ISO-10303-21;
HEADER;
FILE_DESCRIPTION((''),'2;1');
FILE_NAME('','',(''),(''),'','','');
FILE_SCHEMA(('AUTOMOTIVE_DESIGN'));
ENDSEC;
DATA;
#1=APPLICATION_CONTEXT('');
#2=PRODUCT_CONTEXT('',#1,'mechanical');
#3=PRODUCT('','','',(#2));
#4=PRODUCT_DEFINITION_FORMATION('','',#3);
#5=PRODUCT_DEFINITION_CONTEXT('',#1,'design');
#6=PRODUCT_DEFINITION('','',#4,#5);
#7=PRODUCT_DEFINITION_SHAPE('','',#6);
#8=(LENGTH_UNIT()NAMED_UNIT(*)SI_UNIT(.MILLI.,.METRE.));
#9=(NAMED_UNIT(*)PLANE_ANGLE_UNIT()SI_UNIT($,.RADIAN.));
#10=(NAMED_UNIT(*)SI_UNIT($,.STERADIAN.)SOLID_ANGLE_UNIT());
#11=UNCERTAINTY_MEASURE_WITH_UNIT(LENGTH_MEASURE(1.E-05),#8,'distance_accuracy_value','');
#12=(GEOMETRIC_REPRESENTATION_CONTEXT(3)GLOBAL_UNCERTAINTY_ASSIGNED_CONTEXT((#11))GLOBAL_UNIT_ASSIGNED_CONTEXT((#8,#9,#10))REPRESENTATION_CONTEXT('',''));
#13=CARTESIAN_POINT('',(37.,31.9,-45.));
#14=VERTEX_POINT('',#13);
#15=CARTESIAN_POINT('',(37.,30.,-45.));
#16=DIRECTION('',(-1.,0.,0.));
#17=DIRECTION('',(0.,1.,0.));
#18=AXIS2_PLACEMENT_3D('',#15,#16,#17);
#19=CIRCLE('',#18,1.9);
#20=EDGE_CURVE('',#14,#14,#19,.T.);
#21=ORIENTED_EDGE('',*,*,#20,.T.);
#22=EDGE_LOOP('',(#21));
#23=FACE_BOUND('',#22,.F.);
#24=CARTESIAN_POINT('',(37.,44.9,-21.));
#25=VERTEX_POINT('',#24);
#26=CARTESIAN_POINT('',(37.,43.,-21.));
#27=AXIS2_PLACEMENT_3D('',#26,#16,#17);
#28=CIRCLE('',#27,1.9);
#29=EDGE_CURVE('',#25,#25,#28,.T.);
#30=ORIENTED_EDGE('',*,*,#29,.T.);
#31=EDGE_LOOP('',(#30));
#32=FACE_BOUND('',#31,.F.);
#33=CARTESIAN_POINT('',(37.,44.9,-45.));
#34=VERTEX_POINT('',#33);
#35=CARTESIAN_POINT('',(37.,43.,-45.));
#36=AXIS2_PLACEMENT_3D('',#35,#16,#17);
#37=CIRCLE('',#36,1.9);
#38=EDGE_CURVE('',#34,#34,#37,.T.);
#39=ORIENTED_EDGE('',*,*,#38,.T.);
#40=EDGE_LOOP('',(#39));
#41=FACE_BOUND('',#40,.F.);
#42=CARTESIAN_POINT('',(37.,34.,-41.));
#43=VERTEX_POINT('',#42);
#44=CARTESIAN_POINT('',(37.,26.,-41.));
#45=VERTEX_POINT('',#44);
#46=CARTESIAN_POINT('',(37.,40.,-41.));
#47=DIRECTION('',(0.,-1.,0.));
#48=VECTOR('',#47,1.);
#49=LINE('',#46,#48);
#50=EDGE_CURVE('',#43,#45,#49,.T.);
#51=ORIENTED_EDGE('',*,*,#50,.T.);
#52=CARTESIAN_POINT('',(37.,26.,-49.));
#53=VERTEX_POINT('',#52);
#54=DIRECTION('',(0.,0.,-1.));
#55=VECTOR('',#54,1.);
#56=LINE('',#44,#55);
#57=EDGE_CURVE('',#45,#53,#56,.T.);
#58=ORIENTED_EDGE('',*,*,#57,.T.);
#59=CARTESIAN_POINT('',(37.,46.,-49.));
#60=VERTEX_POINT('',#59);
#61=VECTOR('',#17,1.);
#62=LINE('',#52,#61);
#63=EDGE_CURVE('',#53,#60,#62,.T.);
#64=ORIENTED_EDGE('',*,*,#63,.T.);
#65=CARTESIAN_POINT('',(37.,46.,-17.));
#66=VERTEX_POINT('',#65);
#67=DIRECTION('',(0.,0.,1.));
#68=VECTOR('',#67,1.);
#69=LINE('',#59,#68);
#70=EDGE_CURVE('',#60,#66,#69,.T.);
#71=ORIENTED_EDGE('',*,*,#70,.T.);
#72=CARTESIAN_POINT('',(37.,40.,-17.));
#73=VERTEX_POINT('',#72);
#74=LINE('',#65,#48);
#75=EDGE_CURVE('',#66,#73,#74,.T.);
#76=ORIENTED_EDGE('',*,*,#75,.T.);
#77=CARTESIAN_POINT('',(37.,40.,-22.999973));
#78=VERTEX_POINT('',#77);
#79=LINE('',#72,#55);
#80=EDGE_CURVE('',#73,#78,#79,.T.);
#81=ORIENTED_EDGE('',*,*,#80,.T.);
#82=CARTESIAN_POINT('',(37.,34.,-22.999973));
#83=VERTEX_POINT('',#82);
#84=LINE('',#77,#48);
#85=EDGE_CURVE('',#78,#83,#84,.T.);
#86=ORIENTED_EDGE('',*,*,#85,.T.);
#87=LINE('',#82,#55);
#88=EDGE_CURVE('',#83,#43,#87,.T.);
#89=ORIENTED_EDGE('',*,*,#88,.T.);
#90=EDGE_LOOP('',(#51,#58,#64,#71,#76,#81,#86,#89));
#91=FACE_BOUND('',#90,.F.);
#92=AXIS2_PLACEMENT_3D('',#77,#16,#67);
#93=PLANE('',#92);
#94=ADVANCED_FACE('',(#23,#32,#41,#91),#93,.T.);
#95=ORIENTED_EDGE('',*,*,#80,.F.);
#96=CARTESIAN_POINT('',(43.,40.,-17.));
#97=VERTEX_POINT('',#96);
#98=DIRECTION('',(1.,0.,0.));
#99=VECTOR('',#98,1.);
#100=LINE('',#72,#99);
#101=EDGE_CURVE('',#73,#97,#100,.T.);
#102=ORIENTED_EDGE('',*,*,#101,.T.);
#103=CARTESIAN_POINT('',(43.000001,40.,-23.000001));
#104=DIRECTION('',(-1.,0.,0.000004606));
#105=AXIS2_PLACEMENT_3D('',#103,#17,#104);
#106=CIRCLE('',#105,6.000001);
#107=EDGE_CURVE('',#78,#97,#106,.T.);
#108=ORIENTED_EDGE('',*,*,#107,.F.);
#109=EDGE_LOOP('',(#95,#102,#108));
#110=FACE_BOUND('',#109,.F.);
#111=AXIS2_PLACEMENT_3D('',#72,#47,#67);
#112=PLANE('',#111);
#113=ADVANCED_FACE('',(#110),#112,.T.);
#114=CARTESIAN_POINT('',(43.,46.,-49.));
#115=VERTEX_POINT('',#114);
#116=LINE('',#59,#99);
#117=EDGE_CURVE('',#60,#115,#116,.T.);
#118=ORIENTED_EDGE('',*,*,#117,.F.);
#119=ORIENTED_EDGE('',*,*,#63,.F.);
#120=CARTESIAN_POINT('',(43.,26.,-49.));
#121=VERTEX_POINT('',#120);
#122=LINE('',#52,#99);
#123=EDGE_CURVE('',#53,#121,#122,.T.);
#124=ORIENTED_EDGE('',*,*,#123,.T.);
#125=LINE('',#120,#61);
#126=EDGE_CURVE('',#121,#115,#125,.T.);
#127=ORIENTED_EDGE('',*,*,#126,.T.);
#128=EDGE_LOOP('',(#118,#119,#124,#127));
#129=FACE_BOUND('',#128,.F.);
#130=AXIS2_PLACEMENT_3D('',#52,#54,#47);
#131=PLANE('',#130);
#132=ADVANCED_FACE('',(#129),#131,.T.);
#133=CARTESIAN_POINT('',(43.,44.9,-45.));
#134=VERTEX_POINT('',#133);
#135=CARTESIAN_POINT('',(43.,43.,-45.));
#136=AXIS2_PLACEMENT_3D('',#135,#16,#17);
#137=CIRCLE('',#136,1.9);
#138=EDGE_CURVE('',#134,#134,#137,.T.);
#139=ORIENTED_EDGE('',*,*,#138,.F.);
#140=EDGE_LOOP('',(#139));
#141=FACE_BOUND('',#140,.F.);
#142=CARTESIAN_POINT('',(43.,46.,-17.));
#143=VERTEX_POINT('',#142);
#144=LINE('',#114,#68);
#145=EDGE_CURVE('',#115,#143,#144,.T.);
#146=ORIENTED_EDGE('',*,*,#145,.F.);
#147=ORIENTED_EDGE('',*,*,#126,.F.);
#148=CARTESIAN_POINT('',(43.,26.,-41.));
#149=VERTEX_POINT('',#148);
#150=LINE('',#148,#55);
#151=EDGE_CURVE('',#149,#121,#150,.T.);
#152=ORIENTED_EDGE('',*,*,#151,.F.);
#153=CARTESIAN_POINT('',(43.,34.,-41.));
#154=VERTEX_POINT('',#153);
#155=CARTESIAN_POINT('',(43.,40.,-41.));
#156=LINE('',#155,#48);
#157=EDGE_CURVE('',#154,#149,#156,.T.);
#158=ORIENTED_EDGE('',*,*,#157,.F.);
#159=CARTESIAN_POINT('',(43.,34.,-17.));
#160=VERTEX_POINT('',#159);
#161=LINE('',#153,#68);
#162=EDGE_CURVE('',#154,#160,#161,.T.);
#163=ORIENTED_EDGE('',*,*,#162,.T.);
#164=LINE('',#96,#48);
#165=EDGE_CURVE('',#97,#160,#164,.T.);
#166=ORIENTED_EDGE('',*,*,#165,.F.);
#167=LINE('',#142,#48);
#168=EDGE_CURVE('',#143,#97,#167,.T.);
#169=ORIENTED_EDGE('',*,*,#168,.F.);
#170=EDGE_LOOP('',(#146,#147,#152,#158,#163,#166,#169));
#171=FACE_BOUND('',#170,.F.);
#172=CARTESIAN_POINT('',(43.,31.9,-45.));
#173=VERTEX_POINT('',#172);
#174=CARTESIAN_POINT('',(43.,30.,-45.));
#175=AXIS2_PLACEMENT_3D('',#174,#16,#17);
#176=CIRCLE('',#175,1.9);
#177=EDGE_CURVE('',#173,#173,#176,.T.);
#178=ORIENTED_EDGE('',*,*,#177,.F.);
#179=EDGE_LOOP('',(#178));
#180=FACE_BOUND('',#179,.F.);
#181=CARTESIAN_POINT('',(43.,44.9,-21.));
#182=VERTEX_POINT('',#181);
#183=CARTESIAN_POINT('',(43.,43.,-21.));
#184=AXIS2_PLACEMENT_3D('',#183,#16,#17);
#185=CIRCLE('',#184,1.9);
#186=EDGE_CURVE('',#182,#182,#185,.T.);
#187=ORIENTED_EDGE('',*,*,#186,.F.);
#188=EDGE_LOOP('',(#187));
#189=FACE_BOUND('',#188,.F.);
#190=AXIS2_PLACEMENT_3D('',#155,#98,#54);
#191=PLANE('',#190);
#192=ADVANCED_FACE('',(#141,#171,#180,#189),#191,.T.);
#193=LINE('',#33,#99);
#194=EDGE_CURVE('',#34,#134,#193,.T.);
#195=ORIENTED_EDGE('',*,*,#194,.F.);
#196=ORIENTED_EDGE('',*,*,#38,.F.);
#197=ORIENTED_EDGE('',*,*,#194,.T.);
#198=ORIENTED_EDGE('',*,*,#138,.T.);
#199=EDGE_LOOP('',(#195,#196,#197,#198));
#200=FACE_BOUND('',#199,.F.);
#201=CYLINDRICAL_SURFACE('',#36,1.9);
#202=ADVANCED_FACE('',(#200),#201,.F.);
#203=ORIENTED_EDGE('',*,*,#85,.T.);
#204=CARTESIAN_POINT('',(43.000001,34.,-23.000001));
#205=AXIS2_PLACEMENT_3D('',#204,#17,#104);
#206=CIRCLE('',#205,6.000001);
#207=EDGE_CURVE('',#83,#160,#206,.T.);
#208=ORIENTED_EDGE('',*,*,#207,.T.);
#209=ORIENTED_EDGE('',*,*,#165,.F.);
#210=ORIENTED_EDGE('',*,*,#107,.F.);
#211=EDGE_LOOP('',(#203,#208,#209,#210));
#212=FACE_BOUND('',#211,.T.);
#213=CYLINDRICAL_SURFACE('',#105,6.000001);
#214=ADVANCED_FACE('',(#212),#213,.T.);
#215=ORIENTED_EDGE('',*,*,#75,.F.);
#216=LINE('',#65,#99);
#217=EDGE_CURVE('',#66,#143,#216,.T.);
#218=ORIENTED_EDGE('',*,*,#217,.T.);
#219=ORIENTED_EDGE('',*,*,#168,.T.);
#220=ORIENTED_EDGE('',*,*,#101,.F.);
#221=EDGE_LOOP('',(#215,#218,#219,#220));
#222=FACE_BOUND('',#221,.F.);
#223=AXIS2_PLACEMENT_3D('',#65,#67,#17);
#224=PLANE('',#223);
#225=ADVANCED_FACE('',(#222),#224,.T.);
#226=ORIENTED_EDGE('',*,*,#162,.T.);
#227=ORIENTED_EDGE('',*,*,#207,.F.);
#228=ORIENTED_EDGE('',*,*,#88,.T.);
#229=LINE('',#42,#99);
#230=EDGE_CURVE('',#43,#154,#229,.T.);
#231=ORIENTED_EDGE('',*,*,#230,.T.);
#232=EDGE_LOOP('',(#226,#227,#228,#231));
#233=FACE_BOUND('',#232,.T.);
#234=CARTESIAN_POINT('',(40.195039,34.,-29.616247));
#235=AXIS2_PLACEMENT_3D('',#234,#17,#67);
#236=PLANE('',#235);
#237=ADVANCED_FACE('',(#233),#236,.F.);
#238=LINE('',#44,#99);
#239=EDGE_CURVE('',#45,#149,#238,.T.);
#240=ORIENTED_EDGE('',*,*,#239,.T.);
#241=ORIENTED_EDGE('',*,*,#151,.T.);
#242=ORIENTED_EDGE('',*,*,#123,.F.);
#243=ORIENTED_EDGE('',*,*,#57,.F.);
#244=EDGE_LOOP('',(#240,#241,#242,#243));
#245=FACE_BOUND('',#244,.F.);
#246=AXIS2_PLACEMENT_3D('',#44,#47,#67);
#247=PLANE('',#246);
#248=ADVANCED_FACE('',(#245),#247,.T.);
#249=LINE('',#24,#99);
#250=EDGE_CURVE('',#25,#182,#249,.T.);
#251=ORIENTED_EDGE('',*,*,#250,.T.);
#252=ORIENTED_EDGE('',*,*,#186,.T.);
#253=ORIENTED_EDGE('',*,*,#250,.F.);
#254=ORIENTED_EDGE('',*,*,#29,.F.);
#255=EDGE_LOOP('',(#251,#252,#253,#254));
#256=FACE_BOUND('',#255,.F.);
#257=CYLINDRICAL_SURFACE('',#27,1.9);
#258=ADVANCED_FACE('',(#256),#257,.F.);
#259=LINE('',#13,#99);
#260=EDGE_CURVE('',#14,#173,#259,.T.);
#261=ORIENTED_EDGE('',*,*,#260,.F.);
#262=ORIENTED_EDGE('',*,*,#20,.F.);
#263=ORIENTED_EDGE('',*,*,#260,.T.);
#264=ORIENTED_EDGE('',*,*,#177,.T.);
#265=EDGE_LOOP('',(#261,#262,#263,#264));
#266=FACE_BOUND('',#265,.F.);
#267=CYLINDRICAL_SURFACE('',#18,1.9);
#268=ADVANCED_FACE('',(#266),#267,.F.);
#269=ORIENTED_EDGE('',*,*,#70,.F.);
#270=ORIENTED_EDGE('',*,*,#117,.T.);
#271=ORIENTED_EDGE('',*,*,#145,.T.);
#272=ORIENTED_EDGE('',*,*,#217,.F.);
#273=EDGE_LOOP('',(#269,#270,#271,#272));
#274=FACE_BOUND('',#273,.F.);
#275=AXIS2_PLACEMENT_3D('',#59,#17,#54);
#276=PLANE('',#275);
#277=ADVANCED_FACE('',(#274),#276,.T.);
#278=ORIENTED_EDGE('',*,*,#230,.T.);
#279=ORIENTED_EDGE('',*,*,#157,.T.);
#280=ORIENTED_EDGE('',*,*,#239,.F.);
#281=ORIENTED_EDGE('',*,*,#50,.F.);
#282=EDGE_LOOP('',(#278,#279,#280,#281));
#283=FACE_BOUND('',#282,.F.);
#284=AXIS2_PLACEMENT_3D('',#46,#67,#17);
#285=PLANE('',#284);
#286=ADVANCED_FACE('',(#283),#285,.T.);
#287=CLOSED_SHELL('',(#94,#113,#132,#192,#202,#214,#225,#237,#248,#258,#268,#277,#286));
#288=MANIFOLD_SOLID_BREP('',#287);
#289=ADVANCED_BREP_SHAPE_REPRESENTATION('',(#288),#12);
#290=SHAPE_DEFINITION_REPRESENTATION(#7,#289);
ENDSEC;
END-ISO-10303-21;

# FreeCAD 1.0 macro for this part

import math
import FreeCAD as App
import Part
import Sketcher
Q = App.Units.Quantity


def add_polygon(sketch, points):
    """Adds a closed chain of lines whose ends are joined by coincident constraints."""
    first, n = sketch.GeometryCount, len(points)
    for a, b in zip(points, points[1:] + points[:1]):
        sketch.addGeometry(Part.LineSegment(App.Vector(*a, 0), App.Vector(*b, 0)), False)
    for i in range(n):
        sketch.addConstraint(Sketcher.Constraint("Coincident", first + i, 2, first + (i + 1) % n, 1))

doc = App.newDocument("Part")
body = doc.addObject("PartDesign::Body", "Body")

sketch1 = doc.addObject("Sketcher::SketchObject", "Sketch")
body.addObject(sketch1)
sketch1.AttachmentSupport = (doc.YZ_Plane, [""])
sketch1.MapMode = "FlatFace"
sketch1.AttachmentOffset = App.Placement(App.Vector(0, 0, -37), App.Rotation())
add_polygon(sketch1, [(40, -17), (46, -17), (46, -49), (26, -49), (26, -41), (40, -41)])
sketch1.addGeometry(Part.Circle(App.Vector(43, -21, 0), App.Vector(0, 0, 1), 1.9), False)
sketch1.addGeometry(Part.Circle(App.Vector(43, -45, 0), App.Vector(0, 0, 1), 1.9), False)
sketch1.addGeometry(Part.Circle(App.Vector(30, -45, 0), App.Vector(0, 0, 1), 1.9), False)
sketch1.addConstraint(Sketcher.Constraint("Horizontal", 0))
sketch1.addConstraint(Sketcher.Constraint("Vertical", 1))
sketch1.addConstraint(Sketcher.Constraint("Horizontal", 2))
sketch1.addConstraint(Sketcher.Constraint("Vertical", 3))
sketch1.addConstraint(Sketcher.Constraint("Horizontal", 4))
sketch1.addConstraint(Sketcher.Constraint("Vertical", 5))
sketch1.addConstraint(Sketcher.Constraint("Equal", 6, 7))
sketch1.addConstraint(Sketcher.Constraint("Equal", 7, 8))
sketch1.addConstraint(Sketcher.Constraint("Horizontal", 7, 3, 8, 3))
sketch1.addConstraint(Sketcher.Constraint("Vertical", 6, 3, 7, 3))
sketch1.addConstraint(Sketcher.Constraint("Diameter", 6, Q("3.8 mm")))
sketch1.addConstraint(Sketcher.Constraint("DistanceX", 0, 1, 0, 2, Q("6 mm")))
sketch1.addConstraint(Sketcher.Constraint("DistanceX", 2, 2, 2, 1, Q("20 mm")))
sketch1.addConstraint(Sketcher.Constraint("DistanceY", 1, 2, 1, 1, Q("32 mm")))
sketch1.addConstraint(Sketcher.Constraint("DistanceY", 3, 1, 3, 2, Q("8 mm")))
sketch1.addConstraint(Sketcher.Constraint("DistanceX", -1, 1, 6, 3, Q("43 mm")))
sketch1.addConstraint(Sketcher.Constraint("DistanceY", 6, 3, -1, 1, Q("21 mm")))
sketch1.addConstraint(Sketcher.Constraint("DistanceY", 7, 3, -1, 1, Q("45 mm")))
sketch1.addConstraint(Sketcher.Constraint("DistanceX", -1, 1, 8, 3, Q("30 mm")))
sketch1.addConstraint(Sketcher.Constraint("DistanceX", -1, 1, 0, 2, Q("46 mm")))
sketch1.addConstraint(Sketcher.Constraint("DistanceY", 0, 2, -1, 1, Q("17 mm")))
pad1 = doc.addObject("PartDesign::Pad", "Pad")
body.addObject(pad1)
pad1.Profile = sketch1
pad1.Length = 6
pad1.Reversed = True

sketch2 = doc.addObject("Sketcher::SketchObject", "Sketch001")
body.addObject(sketch2)
sketch2.AttachmentSupport = (doc.XZ_Plane, [""])
sketch2.MapMode = "FlatFace"
sketch2.AttachmentOffset = App.Placement(App.Vector(0, 0, -40), App.Rotation())
sketch2.addGeometry(Part.LineSegment(App.Vector(-43, -17, 0), App.Vector(-43, -41, 0)), False)
sketch2.addGeometry(Part.LineSegment(App.Vector(-43, -41, 0), App.Vector(-37, -41, 0)), False)
sketch2.addGeometry(Part.LineSegment(App.Vector(-37, -41, 0), App.Vector(-37, -22.999973, 0)), False)
sketch2.addGeometry(Part.ArcOfCircle(Part.Circle(App.Vector(-43.000001, -23.000001, 0), App.Vector(0, 0, 1), 6.000001), math.radians(0.000264), math.radians(89.999994)), False)
sketch2.addConstraint(Sketcher.Constraint("Coincident", 0, 2, 1, 1))
sketch2.addConstraint(Sketcher.Constraint("Coincident", 1, 2, 2, 1))
sketch2.addConstraint(Sketcher.Constraint("Coincident", 2, 2, 3, 1))
sketch2.addConstraint(Sketcher.Constraint("Coincident", 3, 2, 0, 1))
sketch2.addConstraint(Sketcher.Constraint("Vertical", 0))
sketch2.addConstraint(Sketcher.Constraint("Horizontal", 1))
sketch2.addConstraint(Sketcher.Constraint("Vertical", 2))
sketch2.addConstraint(Sketcher.Constraint("Vertical", 3, 3, 0, 2))
sketch2.addConstraint(Sketcher.Constraint("Radius", 3, Q("6.000001 mm")))
sketch2.addConstraint(Sketcher.Constraint("DistanceY", 0, 2, 0, 1, Q("24 mm")))
sketch2.addConstraint(Sketcher.Constraint("DistanceX", 3, 3, -1, 1, Q("43.000001 mm")))
sketch2.addConstraint(Sketcher.Constraint("DistanceY", 3, 3, -1, 1, Q("23.000001 mm")))
sketch2.addConstraint(Sketcher.Constraint("DistanceY", 2, 1, 2, 2, Q("18.000027 mm")))
pad2 = doc.addObject("PartDesign::Pad", "Pad001")
body.addObject(pad2)
pad2.Profile = sketch2
pad2.Length = 6
body2 = doc.addObject("PartDesign::Body", "Body001")
doc.recompute()

mirroring = doc.addObject("Part::Mirroring", "Mirroring")
mirroring.Source = body
mirroring.Base = App.Vector(0, 0, 0)
mirroring.Normal = App.Vector(1, 0, 0)
body2.BaseFeature = mirroring
doc.recompute()
body.Visibility = False
mirroring.Visibility = False

doc.recompute()
